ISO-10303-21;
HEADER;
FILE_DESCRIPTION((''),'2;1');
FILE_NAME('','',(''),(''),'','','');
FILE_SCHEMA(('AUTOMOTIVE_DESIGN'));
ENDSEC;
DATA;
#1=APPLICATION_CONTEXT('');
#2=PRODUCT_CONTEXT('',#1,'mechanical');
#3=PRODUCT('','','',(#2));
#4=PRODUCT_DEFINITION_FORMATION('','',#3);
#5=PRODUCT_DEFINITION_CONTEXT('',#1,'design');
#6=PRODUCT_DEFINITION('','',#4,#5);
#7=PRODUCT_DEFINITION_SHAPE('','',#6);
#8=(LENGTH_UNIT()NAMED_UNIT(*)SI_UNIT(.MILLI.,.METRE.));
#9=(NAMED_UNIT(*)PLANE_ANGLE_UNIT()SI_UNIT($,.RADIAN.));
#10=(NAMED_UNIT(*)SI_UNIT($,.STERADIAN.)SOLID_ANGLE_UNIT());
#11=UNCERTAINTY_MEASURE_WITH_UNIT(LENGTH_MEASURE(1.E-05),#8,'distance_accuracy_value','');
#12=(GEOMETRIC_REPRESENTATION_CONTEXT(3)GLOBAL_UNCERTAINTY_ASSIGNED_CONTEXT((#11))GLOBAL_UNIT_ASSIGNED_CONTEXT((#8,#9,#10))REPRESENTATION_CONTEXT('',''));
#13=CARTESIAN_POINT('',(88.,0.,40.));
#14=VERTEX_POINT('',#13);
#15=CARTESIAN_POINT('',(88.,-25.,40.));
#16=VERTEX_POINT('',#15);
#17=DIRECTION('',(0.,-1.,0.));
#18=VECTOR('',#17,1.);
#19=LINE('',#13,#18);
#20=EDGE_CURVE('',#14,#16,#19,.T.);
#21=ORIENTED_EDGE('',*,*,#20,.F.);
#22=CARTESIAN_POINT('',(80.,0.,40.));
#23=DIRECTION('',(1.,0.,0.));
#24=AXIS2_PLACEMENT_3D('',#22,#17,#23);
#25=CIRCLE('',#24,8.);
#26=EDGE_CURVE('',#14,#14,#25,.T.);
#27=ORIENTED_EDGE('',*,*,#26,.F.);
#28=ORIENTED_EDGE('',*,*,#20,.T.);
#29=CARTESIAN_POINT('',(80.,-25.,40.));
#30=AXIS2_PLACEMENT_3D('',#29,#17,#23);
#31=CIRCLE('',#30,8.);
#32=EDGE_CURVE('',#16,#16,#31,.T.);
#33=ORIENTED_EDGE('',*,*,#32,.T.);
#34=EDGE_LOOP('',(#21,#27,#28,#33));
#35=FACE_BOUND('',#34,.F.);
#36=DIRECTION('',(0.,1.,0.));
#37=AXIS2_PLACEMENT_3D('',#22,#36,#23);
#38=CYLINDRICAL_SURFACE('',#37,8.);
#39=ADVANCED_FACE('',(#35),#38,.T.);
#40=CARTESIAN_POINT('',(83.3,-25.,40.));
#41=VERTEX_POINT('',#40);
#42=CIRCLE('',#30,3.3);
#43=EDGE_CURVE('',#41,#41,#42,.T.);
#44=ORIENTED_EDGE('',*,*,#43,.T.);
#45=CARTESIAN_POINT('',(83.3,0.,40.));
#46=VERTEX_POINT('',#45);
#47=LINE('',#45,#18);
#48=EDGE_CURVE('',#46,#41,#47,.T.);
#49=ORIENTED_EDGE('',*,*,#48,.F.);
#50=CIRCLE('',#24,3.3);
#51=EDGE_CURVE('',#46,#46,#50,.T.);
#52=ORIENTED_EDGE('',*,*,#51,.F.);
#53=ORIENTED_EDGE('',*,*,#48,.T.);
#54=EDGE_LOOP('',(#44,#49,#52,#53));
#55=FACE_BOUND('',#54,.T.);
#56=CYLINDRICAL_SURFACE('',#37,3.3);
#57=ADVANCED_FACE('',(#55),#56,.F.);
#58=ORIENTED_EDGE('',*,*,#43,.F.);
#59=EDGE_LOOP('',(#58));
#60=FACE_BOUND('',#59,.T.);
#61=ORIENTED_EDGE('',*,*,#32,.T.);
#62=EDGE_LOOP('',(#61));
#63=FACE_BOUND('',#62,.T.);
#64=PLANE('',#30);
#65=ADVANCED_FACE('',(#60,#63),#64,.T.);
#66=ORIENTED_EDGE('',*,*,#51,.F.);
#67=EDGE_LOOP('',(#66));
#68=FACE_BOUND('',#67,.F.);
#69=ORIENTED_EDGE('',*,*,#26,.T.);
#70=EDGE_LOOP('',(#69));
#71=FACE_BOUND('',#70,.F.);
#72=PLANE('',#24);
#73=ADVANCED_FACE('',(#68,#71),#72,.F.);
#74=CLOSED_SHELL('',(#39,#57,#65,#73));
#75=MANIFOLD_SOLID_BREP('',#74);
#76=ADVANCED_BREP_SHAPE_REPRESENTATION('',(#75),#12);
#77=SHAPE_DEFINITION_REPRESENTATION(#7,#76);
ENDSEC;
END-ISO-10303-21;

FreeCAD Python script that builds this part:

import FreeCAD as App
import Part
import Sketcher

V = App.Vector

doc = App.newDocument("Part")
body = doc.addObject("PartDesign::Body", "Body")

sketch1 = doc.addObject("Sketcher::SketchObject", "Sketch")
body.addObject(sketch1)
sketch1.AttachmentSupport = (doc.XZ_Plane, [""])
sketch1.MapMode = "FlatFace"
sketch1.addGeometry(Part.Circle(V(80, 40, 0), V(0, 0, 1), 3.3), False)
sketch1.addConstraint([
    Sketcher.Constraint("Diameter", 0, 6.6),
    Sketcher.Constraint("DistanceX", -1, 1, 0, 3, 80.0),
    Sketcher.Constraint("DistanceY", -1, 1, 0, 3, 40.0),
])
pad1 = doc.addObject("PartDesign::Pad", "Pad")
body.addObject(pad1)
pad1.Profile = sketch1
pad1.Length = 25
body2 = doc.addObject("PartDesign::Body", "Body001")

sketch2 = doc.addObject("Sketcher::SketchObject", "Sketch001")
body2.addObject(sketch2)
sketch2.AttachmentSupport = (doc.getObject("XZ_Plane001"), [""])
sketch2.MapMode = "FlatFace"
sketch2.addGeometry(Part.Circle(V(80, 40, 0), V(0, 0, 1), 8), False)
sketch2.addConstraint([
    Sketcher.Constraint("Diameter", 0, 16.0),
    Sketcher.Constraint("DistanceX", -1, 1, 0, 3, 80.0),
    Sketcher.Constraint("DistanceY", -1, 1, 0, 3, 40.0),
])
pad2 = doc.addObject("PartDesign::Pad", "Pad001")
body2.addObject(pad2)
pad2.Profile = sketch2
pad2.Length = 25
doc.recompute()

boolean = doc.addObject("PartDesign::Boolean", "Boolean")
body2.addObject(boolean)
boolean.Type = "Cut"
boolean.addObjects([body])

doc.recompute()
